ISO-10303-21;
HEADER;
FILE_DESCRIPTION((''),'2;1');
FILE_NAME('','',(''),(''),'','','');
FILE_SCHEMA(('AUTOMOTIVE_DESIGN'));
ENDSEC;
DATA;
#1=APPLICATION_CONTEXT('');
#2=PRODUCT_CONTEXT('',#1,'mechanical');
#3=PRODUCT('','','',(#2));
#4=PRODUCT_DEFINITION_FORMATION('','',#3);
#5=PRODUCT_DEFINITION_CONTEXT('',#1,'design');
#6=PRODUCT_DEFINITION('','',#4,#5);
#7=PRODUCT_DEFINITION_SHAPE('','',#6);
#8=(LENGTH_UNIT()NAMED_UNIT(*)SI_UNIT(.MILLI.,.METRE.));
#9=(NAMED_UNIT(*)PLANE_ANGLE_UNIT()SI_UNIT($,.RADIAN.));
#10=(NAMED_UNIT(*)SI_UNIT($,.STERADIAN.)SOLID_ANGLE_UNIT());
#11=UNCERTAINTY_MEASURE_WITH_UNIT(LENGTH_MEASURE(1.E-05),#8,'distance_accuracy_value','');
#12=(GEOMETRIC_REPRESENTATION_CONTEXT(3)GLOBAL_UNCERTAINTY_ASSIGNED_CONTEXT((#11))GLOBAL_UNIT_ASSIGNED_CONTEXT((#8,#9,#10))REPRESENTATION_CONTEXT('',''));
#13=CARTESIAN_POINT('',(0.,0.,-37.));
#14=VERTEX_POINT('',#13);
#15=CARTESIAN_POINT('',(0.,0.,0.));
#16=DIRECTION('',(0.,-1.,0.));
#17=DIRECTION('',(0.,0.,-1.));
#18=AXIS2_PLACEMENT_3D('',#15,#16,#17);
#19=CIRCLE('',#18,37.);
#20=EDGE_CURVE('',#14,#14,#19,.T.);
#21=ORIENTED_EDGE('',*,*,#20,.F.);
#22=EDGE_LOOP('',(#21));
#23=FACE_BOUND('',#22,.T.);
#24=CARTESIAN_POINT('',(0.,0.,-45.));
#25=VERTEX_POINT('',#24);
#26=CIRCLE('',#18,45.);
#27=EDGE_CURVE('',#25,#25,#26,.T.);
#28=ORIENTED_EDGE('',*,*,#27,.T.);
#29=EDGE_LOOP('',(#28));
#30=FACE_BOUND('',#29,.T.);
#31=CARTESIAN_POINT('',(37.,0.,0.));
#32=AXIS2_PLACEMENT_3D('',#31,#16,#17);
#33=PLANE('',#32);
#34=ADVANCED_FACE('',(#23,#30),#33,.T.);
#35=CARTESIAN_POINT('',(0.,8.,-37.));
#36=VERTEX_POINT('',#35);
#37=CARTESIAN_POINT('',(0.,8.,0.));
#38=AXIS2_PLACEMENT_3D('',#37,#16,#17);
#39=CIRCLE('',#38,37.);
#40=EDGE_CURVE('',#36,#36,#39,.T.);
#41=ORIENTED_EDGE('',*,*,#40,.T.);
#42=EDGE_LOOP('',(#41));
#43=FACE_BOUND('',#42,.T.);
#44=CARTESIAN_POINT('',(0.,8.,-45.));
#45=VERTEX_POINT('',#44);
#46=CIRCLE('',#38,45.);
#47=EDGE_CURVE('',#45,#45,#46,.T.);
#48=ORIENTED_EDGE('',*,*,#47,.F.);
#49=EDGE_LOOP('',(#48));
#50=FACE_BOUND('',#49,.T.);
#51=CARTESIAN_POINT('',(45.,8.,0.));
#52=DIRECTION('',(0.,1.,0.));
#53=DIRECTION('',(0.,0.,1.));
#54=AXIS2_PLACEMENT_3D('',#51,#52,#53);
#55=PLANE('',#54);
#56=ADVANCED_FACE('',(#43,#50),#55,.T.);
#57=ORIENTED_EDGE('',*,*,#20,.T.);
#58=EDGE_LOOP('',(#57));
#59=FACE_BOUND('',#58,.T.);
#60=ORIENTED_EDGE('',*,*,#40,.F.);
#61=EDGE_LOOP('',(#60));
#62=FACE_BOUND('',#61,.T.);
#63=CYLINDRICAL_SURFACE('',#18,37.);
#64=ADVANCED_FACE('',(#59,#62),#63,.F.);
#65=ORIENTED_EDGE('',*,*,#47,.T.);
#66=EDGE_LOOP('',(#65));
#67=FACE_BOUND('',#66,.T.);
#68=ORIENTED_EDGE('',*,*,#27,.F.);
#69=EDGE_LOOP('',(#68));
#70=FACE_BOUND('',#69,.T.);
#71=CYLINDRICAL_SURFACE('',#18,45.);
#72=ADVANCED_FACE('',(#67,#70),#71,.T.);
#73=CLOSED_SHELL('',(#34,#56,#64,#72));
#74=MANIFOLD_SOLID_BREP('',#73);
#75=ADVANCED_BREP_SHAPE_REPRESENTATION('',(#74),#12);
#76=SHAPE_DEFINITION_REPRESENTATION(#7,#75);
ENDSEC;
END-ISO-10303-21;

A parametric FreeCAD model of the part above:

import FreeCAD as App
import Part
import Sketcher
Q = App.Units.Quantity

doc = App.newDocument("Part")
body = doc.addObject("PartDesign::Body", "Body")

# Sketch on XY plane
sketch1 = body.newObject("Sketcher::SketchObject", "Sketch")
sketch1.AttachmentSupport = (doc.getObject("XY_Plane"), [""])
sketch1.MapMode = "FlatFace"
sketch1.addGeometry([
    Part.LineSegment(App.Vector(37, 8, 0), App.Vector(37, 0, 0)),
    Part.LineSegment(App.Vector(37, 0, 0), App.Vector(45, 0, 0)),
    Part.LineSegment(App.Vector(45, 0, 0), App.Vector(45, 8, 0)),
    Part.LineSegment(App.Vector(45, 8, 0), App.Vector(37, 8, 0)),
], False)
sketch1.addConstraint([
    Sketcher.Constraint("Coincident", 0, 2, 1, 1),
    Sketcher.Constraint("Coincident", 1, 2, 2, 1),
    Sketcher.Constraint("Coincident", 2, 2, 3, 1),
    Sketcher.Constraint("Coincident", 3, 2, 0, 1),
    Sketcher.Constraint("Vertical", 0),
    Sketcher.Constraint("Horizontal", 1),
    Sketcher.Constraint("Vertical", 2),
    Sketcher.Constraint("Horizontal", 3),
    Sketcher.Constraint("PointOnObject", 0, 2, -1),
    Sketcher.Constraint("Equal", 3, 0),
    Sketcher.Constraint("DistanceX", 1, 1, 1, 2, Q("8 mm")),
    Sketcher.Constraint("DistanceX", -1, 1, 0, 2, Q("37 mm")),
])
revolution = body.newObject("PartDesign::Revolution", "Revolution")
revolution.Profile = sketch1
revolution.ReferenceAxis = (sketch1, ["V_Axis"])
revolution.Angle = 360

doc.recompute()
